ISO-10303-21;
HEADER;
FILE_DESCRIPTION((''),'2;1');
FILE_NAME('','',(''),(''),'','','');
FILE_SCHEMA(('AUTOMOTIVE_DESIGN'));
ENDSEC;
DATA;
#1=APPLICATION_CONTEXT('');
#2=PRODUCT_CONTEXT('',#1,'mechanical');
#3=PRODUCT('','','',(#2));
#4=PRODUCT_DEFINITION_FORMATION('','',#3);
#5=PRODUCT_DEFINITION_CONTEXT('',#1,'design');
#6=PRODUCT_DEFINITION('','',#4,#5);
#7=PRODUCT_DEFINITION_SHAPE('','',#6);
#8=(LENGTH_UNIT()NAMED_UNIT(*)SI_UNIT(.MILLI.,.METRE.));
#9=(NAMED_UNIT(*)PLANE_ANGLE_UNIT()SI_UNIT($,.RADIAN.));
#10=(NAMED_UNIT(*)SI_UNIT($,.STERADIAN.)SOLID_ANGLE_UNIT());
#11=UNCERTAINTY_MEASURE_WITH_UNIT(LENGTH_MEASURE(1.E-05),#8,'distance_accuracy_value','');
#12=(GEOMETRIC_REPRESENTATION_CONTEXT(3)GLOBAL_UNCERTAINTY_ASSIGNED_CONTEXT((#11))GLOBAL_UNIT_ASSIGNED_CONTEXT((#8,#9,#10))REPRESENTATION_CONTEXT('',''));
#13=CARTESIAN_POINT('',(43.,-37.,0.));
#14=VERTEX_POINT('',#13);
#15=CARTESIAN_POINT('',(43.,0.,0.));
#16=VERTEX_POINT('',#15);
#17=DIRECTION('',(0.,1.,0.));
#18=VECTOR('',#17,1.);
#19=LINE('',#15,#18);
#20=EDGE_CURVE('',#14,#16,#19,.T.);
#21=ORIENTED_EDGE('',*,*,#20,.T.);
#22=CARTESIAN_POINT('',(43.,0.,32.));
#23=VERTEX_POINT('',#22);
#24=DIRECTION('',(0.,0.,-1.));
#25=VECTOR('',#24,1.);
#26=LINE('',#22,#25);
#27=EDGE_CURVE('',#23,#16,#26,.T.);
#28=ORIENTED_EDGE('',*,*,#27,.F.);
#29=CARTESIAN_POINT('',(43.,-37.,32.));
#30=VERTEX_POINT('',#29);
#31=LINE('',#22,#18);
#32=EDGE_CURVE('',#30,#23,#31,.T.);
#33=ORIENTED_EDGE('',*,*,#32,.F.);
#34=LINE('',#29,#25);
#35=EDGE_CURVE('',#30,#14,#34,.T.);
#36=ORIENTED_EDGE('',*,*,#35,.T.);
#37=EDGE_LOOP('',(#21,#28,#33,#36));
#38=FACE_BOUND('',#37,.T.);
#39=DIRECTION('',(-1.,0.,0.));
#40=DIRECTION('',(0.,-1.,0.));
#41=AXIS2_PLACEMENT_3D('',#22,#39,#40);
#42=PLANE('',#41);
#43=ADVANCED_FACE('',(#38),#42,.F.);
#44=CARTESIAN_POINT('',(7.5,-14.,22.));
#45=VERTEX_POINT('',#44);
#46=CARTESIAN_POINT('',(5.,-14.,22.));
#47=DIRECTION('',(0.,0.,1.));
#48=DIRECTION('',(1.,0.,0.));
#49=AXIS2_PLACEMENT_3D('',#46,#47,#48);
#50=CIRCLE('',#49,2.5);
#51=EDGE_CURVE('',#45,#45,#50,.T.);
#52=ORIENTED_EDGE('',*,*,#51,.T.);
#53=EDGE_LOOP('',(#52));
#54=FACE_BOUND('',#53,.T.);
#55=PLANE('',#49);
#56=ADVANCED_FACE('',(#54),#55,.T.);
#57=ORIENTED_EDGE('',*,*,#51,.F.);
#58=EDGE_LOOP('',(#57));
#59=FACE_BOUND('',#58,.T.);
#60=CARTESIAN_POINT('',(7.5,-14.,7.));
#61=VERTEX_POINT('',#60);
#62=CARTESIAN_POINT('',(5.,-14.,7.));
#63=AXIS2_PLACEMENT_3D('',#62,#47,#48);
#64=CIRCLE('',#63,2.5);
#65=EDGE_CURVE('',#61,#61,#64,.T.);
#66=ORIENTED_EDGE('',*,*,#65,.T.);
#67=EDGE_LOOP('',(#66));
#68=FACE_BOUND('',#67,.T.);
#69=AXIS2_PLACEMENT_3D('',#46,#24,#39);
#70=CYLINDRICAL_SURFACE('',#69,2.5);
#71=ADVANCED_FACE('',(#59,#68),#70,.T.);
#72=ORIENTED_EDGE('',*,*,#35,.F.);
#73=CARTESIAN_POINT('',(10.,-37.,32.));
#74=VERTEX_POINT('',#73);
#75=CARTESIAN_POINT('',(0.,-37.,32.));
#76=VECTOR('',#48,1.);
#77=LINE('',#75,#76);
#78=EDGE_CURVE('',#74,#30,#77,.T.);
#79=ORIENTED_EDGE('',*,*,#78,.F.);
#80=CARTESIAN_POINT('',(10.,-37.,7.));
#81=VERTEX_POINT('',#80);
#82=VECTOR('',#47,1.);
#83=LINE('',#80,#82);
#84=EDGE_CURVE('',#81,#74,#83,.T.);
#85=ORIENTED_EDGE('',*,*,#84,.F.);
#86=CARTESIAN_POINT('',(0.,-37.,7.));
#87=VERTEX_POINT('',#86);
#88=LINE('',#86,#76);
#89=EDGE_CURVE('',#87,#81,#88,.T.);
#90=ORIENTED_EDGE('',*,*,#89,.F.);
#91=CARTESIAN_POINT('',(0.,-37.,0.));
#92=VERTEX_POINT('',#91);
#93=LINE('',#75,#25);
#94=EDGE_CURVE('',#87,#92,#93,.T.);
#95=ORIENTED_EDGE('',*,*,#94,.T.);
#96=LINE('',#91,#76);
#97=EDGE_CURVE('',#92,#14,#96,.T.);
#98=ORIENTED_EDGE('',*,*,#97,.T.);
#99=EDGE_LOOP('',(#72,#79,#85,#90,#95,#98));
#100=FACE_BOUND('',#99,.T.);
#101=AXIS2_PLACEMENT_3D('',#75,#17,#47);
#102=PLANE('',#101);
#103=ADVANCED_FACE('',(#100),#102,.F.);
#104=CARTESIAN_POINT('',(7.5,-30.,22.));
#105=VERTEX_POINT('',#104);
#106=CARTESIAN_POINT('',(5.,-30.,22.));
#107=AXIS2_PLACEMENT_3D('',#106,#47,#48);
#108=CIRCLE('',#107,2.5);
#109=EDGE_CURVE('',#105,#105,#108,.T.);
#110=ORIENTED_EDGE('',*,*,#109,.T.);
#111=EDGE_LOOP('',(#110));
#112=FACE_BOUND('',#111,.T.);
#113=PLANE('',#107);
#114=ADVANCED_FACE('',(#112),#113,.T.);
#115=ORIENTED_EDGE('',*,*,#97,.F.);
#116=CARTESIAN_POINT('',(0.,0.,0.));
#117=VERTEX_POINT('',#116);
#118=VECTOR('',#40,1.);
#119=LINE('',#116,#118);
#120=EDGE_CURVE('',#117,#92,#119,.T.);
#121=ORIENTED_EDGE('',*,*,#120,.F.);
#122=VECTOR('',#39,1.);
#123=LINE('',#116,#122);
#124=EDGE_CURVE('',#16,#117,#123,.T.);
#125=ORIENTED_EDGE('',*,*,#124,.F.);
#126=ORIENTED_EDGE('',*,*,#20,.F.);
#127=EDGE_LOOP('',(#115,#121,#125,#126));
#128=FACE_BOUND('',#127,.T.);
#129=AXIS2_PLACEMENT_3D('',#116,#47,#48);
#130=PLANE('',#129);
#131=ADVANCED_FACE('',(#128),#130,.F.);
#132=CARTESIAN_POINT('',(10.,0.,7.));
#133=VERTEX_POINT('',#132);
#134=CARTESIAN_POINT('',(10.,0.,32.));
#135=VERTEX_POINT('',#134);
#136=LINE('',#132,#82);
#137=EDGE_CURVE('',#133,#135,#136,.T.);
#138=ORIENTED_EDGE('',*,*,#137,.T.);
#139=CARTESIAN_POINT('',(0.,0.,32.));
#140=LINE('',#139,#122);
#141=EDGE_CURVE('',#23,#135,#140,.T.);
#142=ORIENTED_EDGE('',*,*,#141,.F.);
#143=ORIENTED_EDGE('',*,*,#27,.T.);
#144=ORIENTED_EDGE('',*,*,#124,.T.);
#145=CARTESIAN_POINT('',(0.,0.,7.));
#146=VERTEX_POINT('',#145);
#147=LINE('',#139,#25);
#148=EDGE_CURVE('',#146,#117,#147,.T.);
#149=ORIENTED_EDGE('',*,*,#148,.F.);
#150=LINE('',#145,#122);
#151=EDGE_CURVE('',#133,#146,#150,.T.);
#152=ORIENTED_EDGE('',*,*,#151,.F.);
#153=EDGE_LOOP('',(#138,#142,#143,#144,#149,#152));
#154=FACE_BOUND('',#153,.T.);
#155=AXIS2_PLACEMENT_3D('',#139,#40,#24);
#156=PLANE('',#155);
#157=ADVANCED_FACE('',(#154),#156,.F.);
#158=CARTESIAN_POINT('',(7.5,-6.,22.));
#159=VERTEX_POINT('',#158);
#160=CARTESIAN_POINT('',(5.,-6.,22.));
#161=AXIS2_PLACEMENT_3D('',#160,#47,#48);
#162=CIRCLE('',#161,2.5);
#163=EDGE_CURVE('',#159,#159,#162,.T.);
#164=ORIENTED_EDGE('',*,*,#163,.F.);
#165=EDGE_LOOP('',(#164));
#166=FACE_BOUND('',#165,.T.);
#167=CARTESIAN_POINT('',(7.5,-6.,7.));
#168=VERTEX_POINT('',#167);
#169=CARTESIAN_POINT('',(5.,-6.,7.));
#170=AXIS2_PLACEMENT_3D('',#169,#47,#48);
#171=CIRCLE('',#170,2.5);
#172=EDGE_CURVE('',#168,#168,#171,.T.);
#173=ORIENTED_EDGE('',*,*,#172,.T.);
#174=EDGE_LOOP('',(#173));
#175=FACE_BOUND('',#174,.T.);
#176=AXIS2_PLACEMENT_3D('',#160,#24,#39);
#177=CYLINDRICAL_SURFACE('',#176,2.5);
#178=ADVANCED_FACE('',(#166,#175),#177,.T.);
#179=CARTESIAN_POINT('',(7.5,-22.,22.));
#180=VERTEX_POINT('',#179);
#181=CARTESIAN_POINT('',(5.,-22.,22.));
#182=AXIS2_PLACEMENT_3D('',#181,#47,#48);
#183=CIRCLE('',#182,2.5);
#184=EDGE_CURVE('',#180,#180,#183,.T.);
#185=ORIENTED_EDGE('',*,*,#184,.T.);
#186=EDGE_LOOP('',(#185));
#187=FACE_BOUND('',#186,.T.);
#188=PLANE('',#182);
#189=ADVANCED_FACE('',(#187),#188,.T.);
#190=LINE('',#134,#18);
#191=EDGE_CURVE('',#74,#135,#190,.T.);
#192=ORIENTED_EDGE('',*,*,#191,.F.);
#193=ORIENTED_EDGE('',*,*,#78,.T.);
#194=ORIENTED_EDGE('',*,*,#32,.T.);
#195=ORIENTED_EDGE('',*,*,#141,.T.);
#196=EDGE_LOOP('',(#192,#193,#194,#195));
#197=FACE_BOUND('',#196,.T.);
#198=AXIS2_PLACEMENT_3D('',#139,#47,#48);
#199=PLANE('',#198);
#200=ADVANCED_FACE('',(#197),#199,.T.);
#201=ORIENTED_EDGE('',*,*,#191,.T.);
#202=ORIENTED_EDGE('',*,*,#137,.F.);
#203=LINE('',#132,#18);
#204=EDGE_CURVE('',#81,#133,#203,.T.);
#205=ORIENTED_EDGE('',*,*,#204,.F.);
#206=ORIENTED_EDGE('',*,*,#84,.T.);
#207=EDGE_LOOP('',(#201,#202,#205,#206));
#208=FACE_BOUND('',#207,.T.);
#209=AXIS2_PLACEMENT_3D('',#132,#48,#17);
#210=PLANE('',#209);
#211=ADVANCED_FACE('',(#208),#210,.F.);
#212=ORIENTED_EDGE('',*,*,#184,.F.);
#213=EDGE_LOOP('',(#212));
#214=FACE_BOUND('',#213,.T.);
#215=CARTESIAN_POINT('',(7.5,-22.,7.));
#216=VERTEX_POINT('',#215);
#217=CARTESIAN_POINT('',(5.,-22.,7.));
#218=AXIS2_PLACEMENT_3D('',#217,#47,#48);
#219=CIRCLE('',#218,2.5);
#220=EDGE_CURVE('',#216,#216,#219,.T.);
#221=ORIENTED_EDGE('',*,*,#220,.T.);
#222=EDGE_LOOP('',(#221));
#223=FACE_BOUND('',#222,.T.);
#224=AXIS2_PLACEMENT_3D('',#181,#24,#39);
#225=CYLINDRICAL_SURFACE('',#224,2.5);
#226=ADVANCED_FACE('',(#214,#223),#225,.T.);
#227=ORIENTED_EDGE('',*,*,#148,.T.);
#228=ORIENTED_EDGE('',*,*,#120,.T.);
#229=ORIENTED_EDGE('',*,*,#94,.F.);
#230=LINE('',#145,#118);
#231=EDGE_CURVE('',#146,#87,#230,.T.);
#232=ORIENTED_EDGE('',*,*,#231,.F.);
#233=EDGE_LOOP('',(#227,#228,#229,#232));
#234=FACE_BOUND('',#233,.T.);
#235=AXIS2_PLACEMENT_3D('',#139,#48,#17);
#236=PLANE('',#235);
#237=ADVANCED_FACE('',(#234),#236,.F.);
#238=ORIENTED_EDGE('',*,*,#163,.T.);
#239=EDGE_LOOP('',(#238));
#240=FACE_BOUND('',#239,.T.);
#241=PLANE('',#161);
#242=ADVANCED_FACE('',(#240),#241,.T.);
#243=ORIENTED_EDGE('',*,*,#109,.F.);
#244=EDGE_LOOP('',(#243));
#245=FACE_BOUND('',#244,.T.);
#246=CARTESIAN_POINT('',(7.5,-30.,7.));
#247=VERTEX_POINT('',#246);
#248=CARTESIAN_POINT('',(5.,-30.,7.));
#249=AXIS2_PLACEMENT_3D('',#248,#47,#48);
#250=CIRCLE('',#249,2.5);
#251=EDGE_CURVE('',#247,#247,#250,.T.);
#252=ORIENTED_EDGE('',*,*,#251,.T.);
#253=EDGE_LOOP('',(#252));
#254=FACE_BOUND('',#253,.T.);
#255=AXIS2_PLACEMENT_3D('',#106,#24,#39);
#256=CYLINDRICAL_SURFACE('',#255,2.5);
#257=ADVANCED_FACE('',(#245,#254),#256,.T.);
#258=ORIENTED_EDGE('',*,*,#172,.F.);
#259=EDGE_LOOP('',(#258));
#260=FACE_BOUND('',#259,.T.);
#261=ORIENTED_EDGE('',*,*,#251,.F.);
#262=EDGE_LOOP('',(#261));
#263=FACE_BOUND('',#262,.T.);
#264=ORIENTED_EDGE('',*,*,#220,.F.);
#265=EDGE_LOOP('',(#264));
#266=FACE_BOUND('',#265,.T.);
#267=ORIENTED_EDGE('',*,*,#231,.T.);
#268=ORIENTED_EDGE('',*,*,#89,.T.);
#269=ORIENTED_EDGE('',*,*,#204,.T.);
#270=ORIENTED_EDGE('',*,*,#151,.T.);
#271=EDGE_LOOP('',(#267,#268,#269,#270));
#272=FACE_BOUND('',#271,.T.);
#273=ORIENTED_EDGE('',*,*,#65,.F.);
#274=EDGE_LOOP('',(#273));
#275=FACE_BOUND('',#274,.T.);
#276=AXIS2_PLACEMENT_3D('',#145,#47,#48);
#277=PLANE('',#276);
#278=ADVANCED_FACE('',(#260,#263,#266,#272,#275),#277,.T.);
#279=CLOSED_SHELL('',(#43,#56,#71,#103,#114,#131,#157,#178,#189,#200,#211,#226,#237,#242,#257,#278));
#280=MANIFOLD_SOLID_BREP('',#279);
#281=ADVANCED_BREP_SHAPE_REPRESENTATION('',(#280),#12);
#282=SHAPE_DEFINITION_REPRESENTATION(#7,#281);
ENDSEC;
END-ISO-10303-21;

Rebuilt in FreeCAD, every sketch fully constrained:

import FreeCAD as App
import Part
import Sketcher
Q = App.Units.Quantity


def add_polygon(sketch, points):
    """Adds a closed chain of lines whose ends are joined by coincident constraints."""
    first, n = sketch.GeometryCount, len(points)
    for a, b in zip(points, points[1:] + points[:1]):
        sketch.addGeometry(Part.LineSegment(App.Vector(*a, 0), App.Vector(*b, 0)), False)
    for i in range(n):
        sketch.addConstraint(Sketcher.Constraint("Coincident", first + i, 2, first + (i + 1) % n, 1))

doc = App.newDocument("Part")
body = doc.addObject("PartDesign::Body", "Body")

# Sketch on XY plane
sketch1 = body.newObject("Sketcher::SketchObject", "Sketch")
sketch1.AttachmentSupport = (doc.getObject("XY_Plane"), [""])
sketch1.MapMode = "FlatFace"
add_polygon(sketch1, [(0, 0), (0, -37), (43, -37), (43, 0)])  # lines 0-3
sketch1.addConstraint(Sketcher.Constraint("Vertical", 0))
sketch1.addConstraint(Sketcher.Constraint("Horizontal", 1))
sketch1.addConstraint(Sketcher.Constraint("Vertical", 2))
sketch1.addConstraint(Sketcher.Constraint("Horizontal", 3))
sketch1.addConstraint(Sketcher.Constraint("Coincident", 3, 2, -1, 1))
sketch1.addConstraint(Sketcher.Constraint("DistanceX", 1, 1, 1, 2, Q("43 mm")))
sketch1.addConstraint(Sketcher.Constraint("DistanceY", 0, 2, 0, 1, Q("37 mm")))
pad1 = body.newObject("PartDesign::Pad", "Pad")
pad1.Profile = sketch1
pad1.Length = 32

# Sketch on XY plane
sketch2 = body.newObject("Sketcher::SketchObject", "Sketch001")
sketch2.AttachmentSupport = (doc.getObject("XY_Plane"), [""])
sketch2.MapMode = "FlatFace"
sketch2.AttachmentOffset = App.Placement(App.Vector(0, 0, 32), App.Rotation())
add_polygon(sketch2, [(0, 0), (0, -37), (10, -37), (10, 0)])  # lines 0-3
sketch2.addConstraint(Sketcher.Constraint("Vertical", 0))
sketch2.addConstraint(Sketcher.Constraint("Horizontal", 1))
sketch2.addConstraint(Sketcher.Constraint("Vertical", 2))
sketch2.addConstraint(Sketcher.Constraint("Horizontal", 3))
sketch2.addConstraint(Sketcher.Constraint("Coincident", 3, 2, -1, 1))
sketch2.addConstraint(Sketcher.Constraint("DistanceX", 1, 1, 1, 2, Q("10 mm")))
sketch2.addConstraint(Sketcher.Constraint("DistanceY", 0, 2, 0, 1, Q("37 mm")))
pocket1 = body.newObject("PartDesign::Pocket", "Pocket")
pocket1.Profile = sketch2
pocket1.Length = 25

# Sketch on XY plane
sketch3 = body.newObject("Sketcher::SketchObject", "Sketch002")
sketch3.AttachmentSupport = (doc.getObject("XY_Plane"), [""])
sketch3.MapMode = "FlatFace"
sketch3.AttachmentOffset = App.Placement(App.Vector(0, 0, 7), App.Rotation())
sketch3.addGeometry(Part.Circle(App.Vector(5, -6, 0), App.Vector(0, 0, 1), 2.5), False)
sketch3.addGeometry(Part.Circle(App.Vector(5, -14, 0), App.Vector(0, 0, 1), 2.5), False)
sketch3.addGeometry(Part.Circle(App.Vector(5, -22, 0), App.Vector(0, 0, 1), 2.5), False)
sketch3.addGeometry(Part.Circle(App.Vector(5, -30, 0), App.Vector(0, 0, 1), 2.5), False)
sketch3.addConstraint(Sketcher.Constraint("Equal", 0, 1))
sketch3.addConstraint(Sketcher.Constraint("Equal", 1, 2))
sketch3.addConstraint(Sketcher.Constraint("Equal", 2, 3))
sketch3.addConstraint(Sketcher.Constraint("Vertical", 0, 3, 1, 3))
sketch3.addConstraint(Sketcher.Constraint("Vertical", 1, 3, 2, 3))
sketch3.addConstraint(Sketcher.Constraint("Vertical", 2, 3, 3, 3))
sketch3.addConstraint(Sketcher.Constraint("Diameter", 0, Q("5 mm")))
sketch3.addConstraint(Sketcher.Constraint("DistanceX", -1, 1, 0, 3, Q("5 mm")))
sketch3.addConstraint(Sketcher.Constraint("DistanceY", 0, 3, -1, 1, Q("6 mm")))
sketch3.addConstraint(Sketcher.Constraint("DistanceY", 1, 3, -1, 1, Q("14 mm")))
sketch3.addConstraint(Sketcher.Constraint("DistanceY", 2, 3, -1, 1, Q("22 mm")))
sketch3.addConstraint(Sketcher.Constraint("DistanceY", 3, 3, -1, 1, Q("30 mm")))
pad2 = body.newObject("PartDesign::Pad", "Pad001")
pad2.Profile = sketch3
pad2.Length = 15

doc.recompute()
